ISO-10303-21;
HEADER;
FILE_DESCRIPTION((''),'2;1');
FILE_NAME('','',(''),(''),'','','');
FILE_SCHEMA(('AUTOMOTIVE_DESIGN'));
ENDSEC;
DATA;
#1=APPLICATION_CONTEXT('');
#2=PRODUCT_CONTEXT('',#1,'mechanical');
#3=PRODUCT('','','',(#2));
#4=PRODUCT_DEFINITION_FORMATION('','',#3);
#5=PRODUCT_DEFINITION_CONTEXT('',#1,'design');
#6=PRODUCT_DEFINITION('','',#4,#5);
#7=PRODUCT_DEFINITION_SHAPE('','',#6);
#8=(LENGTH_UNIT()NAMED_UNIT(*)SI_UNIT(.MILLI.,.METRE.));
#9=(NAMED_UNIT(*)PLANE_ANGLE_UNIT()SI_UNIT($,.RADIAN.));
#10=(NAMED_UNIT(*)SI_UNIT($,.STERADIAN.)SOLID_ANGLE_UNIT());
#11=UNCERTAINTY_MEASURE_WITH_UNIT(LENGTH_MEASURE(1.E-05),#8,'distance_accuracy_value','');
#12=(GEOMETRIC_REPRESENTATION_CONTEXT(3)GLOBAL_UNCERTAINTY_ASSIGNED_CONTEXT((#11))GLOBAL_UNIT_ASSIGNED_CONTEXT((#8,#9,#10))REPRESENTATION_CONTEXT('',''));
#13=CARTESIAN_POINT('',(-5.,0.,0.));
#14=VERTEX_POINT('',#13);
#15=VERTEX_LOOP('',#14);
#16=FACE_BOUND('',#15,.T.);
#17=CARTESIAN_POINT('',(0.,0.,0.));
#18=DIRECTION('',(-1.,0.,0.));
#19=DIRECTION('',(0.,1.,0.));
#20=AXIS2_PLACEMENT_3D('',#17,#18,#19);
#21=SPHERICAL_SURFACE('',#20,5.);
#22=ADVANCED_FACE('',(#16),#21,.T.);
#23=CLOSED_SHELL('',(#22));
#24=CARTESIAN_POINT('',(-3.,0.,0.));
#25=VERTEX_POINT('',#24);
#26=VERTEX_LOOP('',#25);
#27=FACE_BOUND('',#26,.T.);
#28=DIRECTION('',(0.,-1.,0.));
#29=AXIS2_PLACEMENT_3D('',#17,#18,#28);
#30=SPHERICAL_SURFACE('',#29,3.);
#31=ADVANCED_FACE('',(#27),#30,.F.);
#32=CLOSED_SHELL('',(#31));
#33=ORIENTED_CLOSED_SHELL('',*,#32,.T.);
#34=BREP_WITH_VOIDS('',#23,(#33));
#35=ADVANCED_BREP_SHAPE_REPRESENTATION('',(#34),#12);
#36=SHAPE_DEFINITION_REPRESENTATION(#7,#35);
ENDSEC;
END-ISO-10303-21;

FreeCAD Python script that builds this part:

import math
import FreeCAD as App
import Part
import Sketcher
Q = App.Units.Quantity

doc = App.newDocument("Part")
body = doc.addObject("PartDesign::Body", "Body")

# Sketch on XY plane
sketch1 = body.newObject("Sketcher::SketchObject", "Sketch")
sketch1.AttachmentSupport = (doc.getObject("XY_Plane"), [""])
sketch1.MapMode = "FlatFace"
sketch1.addGeometry([
    Part.LineSegment(App.Vector(-5, 0, 0), App.Vector(-3, 0, 0)),
    Part.ArcOfCircle(Part.Circle(App.Vector(0, 0, 0), App.Vector(0, 0, 1), 3), math.radians(0), math.radians(180)),
    Part.LineSegment(App.Vector(3, 0, 0), App.Vector(5, 0, 0)),
    Part.ArcOfCircle(Part.Circle(App.Vector(0, 0, 0), App.Vector(0, 0, 1), 5), math.radians(0), math.radians(180)),
], False)
sketch1.addConstraint([
    Sketcher.Constraint("Coincident", 0, 2, 1, 2),
    Sketcher.Constraint("Coincident", 1, 1, 2, 1),
    Sketcher.Constraint("Coincident", 2, 2, 3, 1),
    Sketcher.Constraint("Coincident", 3, 2, 0, 1),
    Sketcher.Constraint("Horizontal", 0),
    Sketcher.Constraint("Horizontal", 2),
    Sketcher.Constraint("Coincident", 1, 3, -1, 1),
    Sketcher.Constraint("Coincident", 3, 3, -1, 1),
    Sketcher.Constraint("PointOnObject", 0, 2, -1),
    Sketcher.Constraint("PointOnObject", 1, 1, -1),
    Sketcher.Constraint("Radius", 1, Q("3 mm")),
    Sketcher.Constraint("Radius", 3, Q("5 mm")),
])
revolution = body.newObject("PartDesign::Revolution", "Revolution")
revolution.Profile = sketch1
revolution.ReferenceAxis = (sketch1, ["H_Axis"])
revolution.Angle = 360

doc.recompute()
